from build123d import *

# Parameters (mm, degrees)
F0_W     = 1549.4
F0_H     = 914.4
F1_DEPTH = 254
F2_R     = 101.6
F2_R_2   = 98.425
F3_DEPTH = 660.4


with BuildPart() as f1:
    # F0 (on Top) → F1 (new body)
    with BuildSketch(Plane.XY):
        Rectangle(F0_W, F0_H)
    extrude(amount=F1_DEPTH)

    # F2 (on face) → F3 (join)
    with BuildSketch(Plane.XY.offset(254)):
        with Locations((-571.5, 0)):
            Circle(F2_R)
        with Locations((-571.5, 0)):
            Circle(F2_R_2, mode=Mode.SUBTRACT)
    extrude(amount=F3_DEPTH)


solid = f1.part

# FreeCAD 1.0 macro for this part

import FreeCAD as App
import Part
import Sketcher
from FreeCAD import Vector
Q = App.Units.Quantity


def add_polygon(sketch, points):
    """Adds a closed chain of lines whose ends are joined by coincident constraints."""
    first, n = sketch.GeometryCount, len(points)
    for a, b in zip(points, points[1:] + points[:1]):
        sketch.addGeometry(Part.LineSegment(App.Vector(*a, 0), App.Vector(*b, 0)), False)
    for i in range(n):
        sketch.addConstraint(Sketcher.Constraint("Coincident", first + i, 2, first + (i + 1) % n, 1))

doc = App.newDocument("Part")
body = doc.addObject("PartDesign::Body", "Body")

# Sketch on XY plane
sketch1 = body.newObject("Sketcher::SketchObject", "Sketch")
sketch1.AttachmentSupport = (doc.getObject("XY_Plane"), [""])
sketch1.MapMode = "FlatFace"
add_polygon(sketch1, [(-775, 457), (-775, -457), (775, -457), (775, 457)])  # lines 0-3
sketch1.addConstraint([
    Sketcher.Constraint("Vertical", 0),
    Sketcher.Constraint("Horizontal", 1),
    Sketcher.Constraint("Vertical", 2),
    Sketcher.Constraint("Horizontal", 3),
    Sketcher.Constraint("Symmetric", 0, 2, 2, 2, -1, 1),
    Sketcher.Constraint("DistanceX", 1, 1, 1, 2, Q("61 in")),
    Sketcher.Constraint("DistanceY", 0, 2, 0, 1, Q("36 in")),
])
pad1 = body.newObject("PartDesign::Pad", "Pad")
pad1.Profile = sketch1
pad1.Length = Q("10 in")

# Sketch on XY plane
sketch2 = body.newObject("Sketcher::SketchObject", "Sketch001")
sketch2.AttachmentSupport = (doc.getObject("XY_Plane"), [""])
sketch2.MapMode = "FlatFace"
sketch2.AttachmentOffset = App.Placement(Vector(0, 0, 10 * 25.4), App.Rotation())
sketch2.addGeometry([
    Part.Circle(Vector(-572, 0, 0), Vector(0, 0, 1), 102),
    Part.Circle(Vector(-572, 0, 0), Vector(0, 0, 1), 98),
], False)
sketch2.addConstraint([
    Sketcher.Constraint("Coincident", 1, 3, 0, 3),
    Sketcher.Constraint("PointOnObject", 0, 3, -1),
    Sketcher.Constraint("Diameter", 0, Q("8 in")),
    Sketcher.Constraint("Diameter", 1, Q("7.75 in")),
    Sketcher.Constraint("DistanceX", 0, 3, -1, 1, Q("22.5 in")),
])
pad2 = body.newObject("PartDesign::Pad", "Pad001")
pad2.Profile = sketch2
pad2.Length = Q("26 in")

doc.recompute()
